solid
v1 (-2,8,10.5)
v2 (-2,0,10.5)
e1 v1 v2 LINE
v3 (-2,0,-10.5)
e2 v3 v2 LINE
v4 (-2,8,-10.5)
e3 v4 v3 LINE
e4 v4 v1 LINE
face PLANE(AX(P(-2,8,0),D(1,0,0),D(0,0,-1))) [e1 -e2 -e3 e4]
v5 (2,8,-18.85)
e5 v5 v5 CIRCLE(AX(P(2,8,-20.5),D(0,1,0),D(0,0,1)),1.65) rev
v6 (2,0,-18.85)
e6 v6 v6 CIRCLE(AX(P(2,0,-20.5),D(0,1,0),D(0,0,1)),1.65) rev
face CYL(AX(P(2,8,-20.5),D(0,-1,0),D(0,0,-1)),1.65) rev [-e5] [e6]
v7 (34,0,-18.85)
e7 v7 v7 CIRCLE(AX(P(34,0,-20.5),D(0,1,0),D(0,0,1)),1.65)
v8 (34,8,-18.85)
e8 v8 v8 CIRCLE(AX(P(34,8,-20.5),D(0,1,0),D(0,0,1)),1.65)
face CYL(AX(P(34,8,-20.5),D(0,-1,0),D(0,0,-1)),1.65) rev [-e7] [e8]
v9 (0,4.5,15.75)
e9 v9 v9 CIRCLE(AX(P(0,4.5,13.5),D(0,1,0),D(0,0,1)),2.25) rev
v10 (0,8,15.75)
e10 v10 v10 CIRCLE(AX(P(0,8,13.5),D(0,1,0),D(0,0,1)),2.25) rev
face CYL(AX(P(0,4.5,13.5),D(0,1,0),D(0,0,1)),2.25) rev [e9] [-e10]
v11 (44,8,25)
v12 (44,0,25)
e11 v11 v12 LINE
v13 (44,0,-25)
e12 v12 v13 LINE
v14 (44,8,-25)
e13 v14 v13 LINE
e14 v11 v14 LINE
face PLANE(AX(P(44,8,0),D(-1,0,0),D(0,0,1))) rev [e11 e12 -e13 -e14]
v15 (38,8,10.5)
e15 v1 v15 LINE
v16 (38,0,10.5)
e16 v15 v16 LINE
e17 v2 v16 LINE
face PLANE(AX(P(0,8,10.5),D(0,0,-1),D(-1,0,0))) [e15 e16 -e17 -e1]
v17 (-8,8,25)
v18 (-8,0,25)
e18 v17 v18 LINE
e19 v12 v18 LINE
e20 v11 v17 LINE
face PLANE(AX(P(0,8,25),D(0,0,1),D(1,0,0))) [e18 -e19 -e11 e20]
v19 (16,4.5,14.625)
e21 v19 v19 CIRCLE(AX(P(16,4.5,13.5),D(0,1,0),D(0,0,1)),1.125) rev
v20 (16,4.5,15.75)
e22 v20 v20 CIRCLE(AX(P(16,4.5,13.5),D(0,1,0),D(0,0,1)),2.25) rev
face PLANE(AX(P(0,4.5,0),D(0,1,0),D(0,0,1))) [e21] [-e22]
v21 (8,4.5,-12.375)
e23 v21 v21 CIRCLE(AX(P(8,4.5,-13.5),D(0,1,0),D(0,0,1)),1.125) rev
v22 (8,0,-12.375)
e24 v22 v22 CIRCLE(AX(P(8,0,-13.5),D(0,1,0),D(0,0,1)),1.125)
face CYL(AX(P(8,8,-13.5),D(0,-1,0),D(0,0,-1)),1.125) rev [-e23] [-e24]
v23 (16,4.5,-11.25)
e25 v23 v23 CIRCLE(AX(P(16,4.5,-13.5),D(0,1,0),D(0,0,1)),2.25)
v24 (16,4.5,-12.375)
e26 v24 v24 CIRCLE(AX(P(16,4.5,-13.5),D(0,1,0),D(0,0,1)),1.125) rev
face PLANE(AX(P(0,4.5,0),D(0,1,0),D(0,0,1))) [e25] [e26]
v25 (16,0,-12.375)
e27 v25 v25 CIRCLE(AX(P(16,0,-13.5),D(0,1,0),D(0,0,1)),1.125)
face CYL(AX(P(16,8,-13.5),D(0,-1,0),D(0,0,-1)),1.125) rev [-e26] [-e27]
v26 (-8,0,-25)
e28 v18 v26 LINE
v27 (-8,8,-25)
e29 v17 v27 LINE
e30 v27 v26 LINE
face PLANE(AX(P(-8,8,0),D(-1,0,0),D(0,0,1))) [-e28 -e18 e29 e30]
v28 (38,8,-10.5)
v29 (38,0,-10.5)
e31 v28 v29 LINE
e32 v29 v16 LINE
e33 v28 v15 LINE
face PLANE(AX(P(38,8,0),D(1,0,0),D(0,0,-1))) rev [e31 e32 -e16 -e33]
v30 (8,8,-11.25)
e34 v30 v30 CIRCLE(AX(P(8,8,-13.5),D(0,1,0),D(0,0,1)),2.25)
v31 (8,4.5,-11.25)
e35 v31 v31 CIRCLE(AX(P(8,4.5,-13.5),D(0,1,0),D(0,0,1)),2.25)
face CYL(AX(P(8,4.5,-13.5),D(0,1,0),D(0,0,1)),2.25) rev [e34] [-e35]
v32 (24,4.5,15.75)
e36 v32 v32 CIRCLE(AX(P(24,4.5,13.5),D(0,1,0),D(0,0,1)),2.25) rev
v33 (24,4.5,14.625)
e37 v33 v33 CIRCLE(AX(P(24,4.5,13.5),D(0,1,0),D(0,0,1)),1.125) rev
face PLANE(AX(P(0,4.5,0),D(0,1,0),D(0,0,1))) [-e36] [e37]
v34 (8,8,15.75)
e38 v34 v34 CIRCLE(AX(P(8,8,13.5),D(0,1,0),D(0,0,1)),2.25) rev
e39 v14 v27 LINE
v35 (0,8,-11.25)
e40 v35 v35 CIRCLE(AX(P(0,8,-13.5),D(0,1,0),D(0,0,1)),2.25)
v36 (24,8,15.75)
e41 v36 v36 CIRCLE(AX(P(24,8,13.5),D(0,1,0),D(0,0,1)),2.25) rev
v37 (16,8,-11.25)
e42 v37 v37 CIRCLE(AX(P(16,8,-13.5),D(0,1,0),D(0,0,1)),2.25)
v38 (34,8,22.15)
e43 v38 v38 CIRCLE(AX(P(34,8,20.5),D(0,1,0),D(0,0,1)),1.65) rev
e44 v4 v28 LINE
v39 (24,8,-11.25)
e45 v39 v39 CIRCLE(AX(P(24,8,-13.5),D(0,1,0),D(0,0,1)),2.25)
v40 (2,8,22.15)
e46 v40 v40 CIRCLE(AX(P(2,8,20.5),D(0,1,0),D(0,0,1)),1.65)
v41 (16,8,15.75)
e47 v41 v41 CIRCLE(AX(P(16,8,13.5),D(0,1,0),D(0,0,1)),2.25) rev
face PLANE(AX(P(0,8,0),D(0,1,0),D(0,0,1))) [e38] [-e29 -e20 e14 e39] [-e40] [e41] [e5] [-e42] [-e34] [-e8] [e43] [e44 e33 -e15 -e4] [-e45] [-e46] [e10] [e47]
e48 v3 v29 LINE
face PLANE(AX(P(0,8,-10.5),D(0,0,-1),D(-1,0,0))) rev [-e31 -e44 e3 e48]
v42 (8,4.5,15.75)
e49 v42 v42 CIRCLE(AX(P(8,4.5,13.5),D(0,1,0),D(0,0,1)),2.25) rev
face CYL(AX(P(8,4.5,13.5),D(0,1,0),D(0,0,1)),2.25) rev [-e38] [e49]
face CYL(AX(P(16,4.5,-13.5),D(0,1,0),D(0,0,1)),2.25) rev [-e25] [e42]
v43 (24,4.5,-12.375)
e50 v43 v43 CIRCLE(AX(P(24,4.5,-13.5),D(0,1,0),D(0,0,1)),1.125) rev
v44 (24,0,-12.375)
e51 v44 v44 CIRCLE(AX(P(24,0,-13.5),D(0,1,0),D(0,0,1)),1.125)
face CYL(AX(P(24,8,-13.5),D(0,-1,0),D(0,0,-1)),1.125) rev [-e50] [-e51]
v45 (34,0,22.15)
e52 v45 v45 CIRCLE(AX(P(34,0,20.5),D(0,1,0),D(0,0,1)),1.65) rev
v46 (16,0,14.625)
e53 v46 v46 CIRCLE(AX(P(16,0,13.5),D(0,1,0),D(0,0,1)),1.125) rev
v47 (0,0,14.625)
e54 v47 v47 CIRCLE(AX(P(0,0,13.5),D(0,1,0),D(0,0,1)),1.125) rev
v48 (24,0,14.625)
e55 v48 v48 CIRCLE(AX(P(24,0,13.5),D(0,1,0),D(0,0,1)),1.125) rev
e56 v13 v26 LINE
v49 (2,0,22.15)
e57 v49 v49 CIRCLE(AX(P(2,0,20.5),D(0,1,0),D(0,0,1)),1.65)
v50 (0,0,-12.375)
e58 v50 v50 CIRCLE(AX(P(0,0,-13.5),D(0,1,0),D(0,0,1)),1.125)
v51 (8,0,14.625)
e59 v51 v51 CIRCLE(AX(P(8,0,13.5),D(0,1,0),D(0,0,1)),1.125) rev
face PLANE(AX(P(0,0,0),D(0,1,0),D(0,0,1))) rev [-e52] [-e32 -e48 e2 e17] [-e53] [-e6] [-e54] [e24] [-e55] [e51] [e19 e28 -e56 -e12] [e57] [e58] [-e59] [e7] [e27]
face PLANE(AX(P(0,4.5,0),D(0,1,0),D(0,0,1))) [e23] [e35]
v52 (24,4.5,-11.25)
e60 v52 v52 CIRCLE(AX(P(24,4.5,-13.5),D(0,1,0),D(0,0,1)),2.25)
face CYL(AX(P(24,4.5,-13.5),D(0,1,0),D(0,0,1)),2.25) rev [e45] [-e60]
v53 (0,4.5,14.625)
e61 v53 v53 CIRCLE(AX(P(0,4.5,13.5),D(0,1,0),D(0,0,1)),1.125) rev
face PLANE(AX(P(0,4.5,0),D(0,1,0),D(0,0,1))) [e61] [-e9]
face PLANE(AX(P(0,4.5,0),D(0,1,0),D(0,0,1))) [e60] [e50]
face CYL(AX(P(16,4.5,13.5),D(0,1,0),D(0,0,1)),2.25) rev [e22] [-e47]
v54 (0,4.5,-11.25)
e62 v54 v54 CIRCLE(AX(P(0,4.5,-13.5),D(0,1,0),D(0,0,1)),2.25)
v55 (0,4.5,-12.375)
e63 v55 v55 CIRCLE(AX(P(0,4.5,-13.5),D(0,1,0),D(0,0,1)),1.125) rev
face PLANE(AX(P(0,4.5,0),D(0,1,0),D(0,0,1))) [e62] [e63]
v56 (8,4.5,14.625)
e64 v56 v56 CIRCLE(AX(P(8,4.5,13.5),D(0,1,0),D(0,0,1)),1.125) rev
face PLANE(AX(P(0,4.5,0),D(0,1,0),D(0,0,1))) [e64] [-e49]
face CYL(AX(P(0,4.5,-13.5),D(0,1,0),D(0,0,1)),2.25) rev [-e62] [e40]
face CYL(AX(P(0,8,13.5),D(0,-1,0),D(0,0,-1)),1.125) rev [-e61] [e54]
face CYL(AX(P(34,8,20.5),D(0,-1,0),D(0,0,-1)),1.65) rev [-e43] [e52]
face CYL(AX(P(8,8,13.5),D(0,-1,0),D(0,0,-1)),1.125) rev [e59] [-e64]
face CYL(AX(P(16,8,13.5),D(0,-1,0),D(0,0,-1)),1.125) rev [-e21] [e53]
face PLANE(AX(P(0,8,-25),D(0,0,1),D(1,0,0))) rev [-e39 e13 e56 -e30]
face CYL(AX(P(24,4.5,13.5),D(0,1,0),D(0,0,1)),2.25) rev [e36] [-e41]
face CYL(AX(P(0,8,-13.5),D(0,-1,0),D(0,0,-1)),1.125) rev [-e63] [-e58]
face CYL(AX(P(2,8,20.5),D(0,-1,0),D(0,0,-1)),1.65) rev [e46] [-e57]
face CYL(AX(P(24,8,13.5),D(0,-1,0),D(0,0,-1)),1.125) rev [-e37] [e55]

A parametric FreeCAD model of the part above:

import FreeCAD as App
import Part
import Sketcher
Q = App.Units.Quantity

doc = App.newDocument("Part")
body = doc.addObject("PartDesign::Body", "Body")

# Sketch on XZ plane
sketch1 = body.newObject("Sketcher::SketchObject", "Sketch")
sketch1.AttachmentSupport = (doc.getObject("XZ_Plane"), [""])
sketch1.MapMode = "FlatFace"
sketch1.addGeometry(Part.LineSegment(App.Vector(-8, -25, 0), App.Vector(-8, 25, 0)), False)
sketch1.addGeometry(Part.LineSegment(App.Vector(-8, 25, 0), App.Vector(44, 25, 0)), False)
sketch1.addGeometry(Part.LineSegment(App.Vector(44, 25, 0), App.Vector(44, -25, 0)), False)
sketch1.addGeometry(Part.LineSegment(App.Vector(44, -25, 0), App.Vector(-8, -25, 0)), False)
sketch1.addGeometry(Part.Circle(App.Vector(2, 20.5, 0), App.Vector(0, 0, 1), 1.65), False)
sketch1.addGeometry(Part.Circle(App.Vector(0, 13.5, 0), App.Vector(0, 0, 1), 1.125), False)
sketch1.addGeometry(Part.Circle(App.Vector(8, 13.5, 0), App.Vector(0, 0, 1), 1.125), False)
sketch1.addGeometry(Part.Circle(App.Vector(16, 13.5, 0), App.Vector(0, 0, 1), 1.125), False)
sketch1.addGeometry(Part.Circle(App.Vector(24, 13.5, 0), App.Vector(0, 0, 1), 1.125), False)
sketch1.addGeometry(Part.Circle(App.Vector(34, 20.5, 0), App.Vector(0, 0, 1), 1.65), False)
sketch1.addGeometry(Part.Circle(App.Vector(0, -13.5, 0), App.Vector(0, 0, 1), 1.125), False)
sketch1.addGeometry(Part.Circle(App.Vector(2, -20.5, 0), App.Vector(0, 0, 1), 1.65), False)
sketch1.addGeometry(Part.Circle(App.Vector(8, -13.5, 0), App.Vector(0, 0, 1), 1.125), False)
sketch1.addGeometry(Part.Circle(App.Vector(16, -13.5, 0), App.Vector(0, 0, 1), 1.125), False)
sketch1.addGeometry(Part.LineSegment(App.Vector(38, 10.5, 0), App.Vector(-2, 10.5, 0)), False)
sketch1.addGeometry(Part.LineSegment(App.Vector(-2, 10.5, 0), App.Vector(-2, -10.5, 0)), False)
sketch1.addGeometry(Part.LineSegment(App.Vector(-2, -10.5, 0), App.Vector(38, -10.5, 0)), False)
sketch1.addGeometry(Part.LineSegment(App.Vector(38, -10.5, 0), App.Vector(38, 10.5, 0)), False)
sketch1.addGeometry(Part.Circle(App.Vector(24, -13.5, 0), App.Vector(0, 0, 1), 1.125), False)
sketch1.addGeometry(Part.Circle(App.Vector(34, -20.5, 0), App.Vector(0, 0, 1), 1.65), False)
sketch1.addConstraint(Sketcher.Constraint("Coincident", 0, 2, 1, 1))
sketch1.addConstraint(Sketcher.Constraint("Coincident", 1, 2, 2, 1))
sketch1.addConstraint(Sketcher.Constraint("Coincident", 2, 2, 3, 1))
sketch1.addConstraint(Sketcher.Constraint("Coincident", 3, 2, 0, 1))
sketch1.addConstraint(Sketcher.Constraint("Coincident", 14, 2, 15, 1))
sketch1.addConstraint(Sketcher.Constraint("Coincident", 15, 2, 16, 1))
sketch1.addConstraint(Sketcher.Constraint("Coincident", 16, 2, 17, 1))
sketch1.addConstraint(Sketcher.Constraint("Coincident", 17, 2, 14, 1))
sketch1.addConstraint(Sketcher.Constraint("Vertical", 0))
sketch1.addConstraint(Sketcher.Constraint("Horizontal", 1))
sketch1.addConstraint(Sketcher.Constraint("Vertical", 2))
sketch1.addConstraint(Sketcher.Constraint("Horizontal", 3))
sketch1.addConstraint(Sketcher.Constraint("Horizontal", 14))
sketch1.addConstraint(Sketcher.Constraint("Vertical", 15))
sketch1.addConstraint(Sketcher.Constraint("Horizontal", 16))
sketch1.addConstraint(Sketcher.Constraint("Vertical", 17))
sketch1.addConstraint(Sketcher.Constraint("Equal", 5, 6))
sketch1.addConstraint(Sketcher.Constraint("Equal", 6, 7))
sketch1.addConstraint(Sketcher.Constraint("Equal", 7, 8))
sketch1.addConstraint(Sketcher.Constraint("Equal", 4, 9))
sketch1.addConstraint(Sketcher.Constraint("Equal", 8, 10))
sketch1.addConstraint(Sketcher.Constraint("Equal", 9, 11))
sketch1.addConstraint(Sketcher.Constraint("Equal", 10, 12))
sketch1.addConstraint(Sketcher.Constraint("Equal", 12, 13))
sketch1.addConstraint(Sketcher.Constraint("Equal", 13, 18))
sketch1.addConstraint(Sketcher.Constraint("Equal", 11, 19))
sketch1.addConstraint(Sketcher.Constraint("Symmetric", 5, 3, 10, 3, -1, 1))
sketch1.addConstraint(Sketcher.Constraint("Symmetric", 4, 3, 11, 3, -1))
sketch1.addConstraint(Sketcher.Constraint("Symmetric", 6, 3, 12, 3, -1))
sketch1.addConstraint(Sketcher.Constraint("Symmetric", 7, 3, 13, 3, -1))
sketch1.addConstraint(Sketcher.Constraint("Symmetric", 8, 3, 18, 3, -1))
sketch1.addConstraint(Sketcher.Constraint("Symmetric", 9, 3, 19, 3, -1))
sketch1.addConstraint(Sketcher.Constraint("PointOnObject", 5, 3, -2))
sketch1.addConstraint(Sketcher.Constraint("Horizontal", 5, 3, 6, 3))
sketch1.addConstraint(Sketcher.Constraint("Horizontal", 6, 3, 7, 3))
sketch1.addConstraint(Sketcher.Constraint("Horizontal", 7, 3, 8, 3))
sketch1.addConstraint(Sketcher.Constraint("Horizontal", 4, 3, 9, 3))
sketch1.addConstraint(Sketcher.Constraint("Diameter", 4, Q("3.3 mm")))
sketch1.addConstraint(Sketcher.Constraint("Diameter", 5, Q("2.25 mm")))
sketch1.addConstraint(Sketcher.Constraint("DistanceX", 1, 1, 1, 2, Q("52 mm")))
sketch1.addConstraint(Sketcher.Constraint("DistanceX", 14, 2, 14, 1, Q("40 mm")))
sketch1.addConstraint(Sketcher.Constraint("DistanceY", 0, 1, 0, 2, Q("50 mm")))
sketch1.addConstraint(Sketcher.Constraint("DistanceY", 15, 2, 15, 1, Q("21 mm")))
sketch1.addConstraint(Sketcher.Constraint("DistanceX", -1, 1, 4, 3, Q("2 mm")))
sketch1.addConstraint(Sketcher.Constraint("DistanceX", -1, 1, 6, 3, Q("8 mm")))
sketch1.addConstraint(Sketcher.Constraint("DistanceX", -1, 1, 7, 3, Q("16 mm")))
sketch1.addConstraint(Sketcher.Constraint("DistanceX", -1, 1, 8, 3, Q("24 mm")))
sketch1.addConstraint(Sketcher.Constraint("DistanceX", -1, 1, 9, 3, Q("34 mm")))
sketch1.addConstraint(Sketcher.Constraint("DistanceX", 0, 2, -1, 1, Q("8 mm")))
sketch1.addConstraint(Sketcher.Constraint("DistanceY", -1, 1, 0, 2, Q("25 mm")))
sketch1.addConstraint(Sketcher.Constraint("DistanceX", 14, 2, -1, 1, Q("2 mm")))
sketch1.addConstraint(Sketcher.Constraint("DistanceY", 5, 3, 4, 3, Q("7 mm")))
sketch1.addConstraint(Sketcher.Constraint("DistanceY", 10, 3, 5, 3, Q("27 mm")))
sketch1.addConstraint(Sketcher.Constraint("DistanceY", 14, 2, 5, 3, Q("3 mm")))
pad1 = body.newObject("PartDesign::Pad", "Pad")
pad1.Profile = sketch1
pad1.Length = 8
pad1.Reversed = True

# Sketch on XZ plane
sketch2 = body.newObject("Sketcher::SketchObject", "Sketch001")
sketch2.AttachmentSupport = (doc.getObject("XZ_Plane"), [""])
sketch2.MapMode = "FlatFace"
sketch2.AttachmentOffset = App.Placement(App.Vector(0, 0, -8), App.Rotation())
sketch2.addGeometry(Part.Circle(App.Vector(0, -13.5, 0), App.Vector(0, 0, 1), 2.25), False)
sketch2.addGeometry(Part.Circle(App.Vector(0, -13.5, 0), App.Vector(0, 0, 1), 1.125), False)
sketch2.addGeometry(Part.Circle(App.Vector(8, -13.5, 0), App.Vector(0, 0, 1), 2.25), False)
sketch2.addGeometry(Part.Circle(App.Vector(8, -13.5, 0), App.Vector(0, 0, 1), 1.125), False)
sketch2.addGeometry(Part.Circle(App.Vector(16, -13.5, 0), App.Vector(0, 0, 1), 2.25), False)
sketch2.addGeometry(Part.Circle(App.Vector(16, -13.5, 0), App.Vector(0, 0, 1), 1.125), False)
sketch2.addGeometry(Part.Circle(App.Vector(24, -13.5, 0), App.Vector(0, 0, 1), 2.25), False)
sketch2.addGeometry(Part.Circle(App.Vector(24, -13.5, 0), App.Vector(0, 0, 1), 1.125), False)
sketch2.addGeometry(Part.Circle(App.Vector(24, 13.5, 0), App.Vector(0, 0, 1), 2.25), False)
sketch2.addGeometry(Part.Circle(App.Vector(24, 13.5, 0), App.Vector(0, 0, 1), 1.125), False)
sketch2.addGeometry(Part.Circle(App.Vector(16, 13.5, 0), App.Vector(0, 0, 1), 2.25), False)
sketch2.addGeometry(Part.Circle(App.Vector(16, 13.5, 0), App.Vector(0, 0, 1), 1.125), False)
sketch2.addGeometry(Part.Circle(App.Vector(8, 13.5, 0), App.Vector(0, 0, 1), 2.25), False)
sketch2.addGeometry(Part.Circle(App.Vector(8, 13.5, 0), App.Vector(0, 0, 1), 1.125), False)
sketch2.addGeometry(Part.Circle(App.Vector(0, 13.5, 0), App.Vector(0, 0, 1), 2.25), False)
sketch2.addGeometry(Part.Circle(App.Vector(0, 13.5, 0), App.Vector(0, 0, 1), 1.125), False)
sketch2.addConstraint(Sketcher.Constraint("Coincident", 1, 3, 0, 3))
sketch2.addConstraint(Sketcher.Constraint("Coincident", 3, 3, 2, 3))
sketch2.addConstraint(Sketcher.Constraint("Coincident", 5, 3, 4, 3))
sketch2.addConstraint(Sketcher.Constraint("Coincident", 7, 3, 6, 3))
sketch2.addConstraint(Sketcher.Constraint("Coincident", 9, 3, 8, 3))
sketch2.addConstraint(Sketcher.Constraint("Coincident", 11, 3, 10, 3))
sketch2.addConstraint(Sketcher.Constraint("Coincident", 13, 3, 12, 3))
sketch2.addConstraint(Sketcher.Constraint("Coincident", 15, 3, 14, 3))
sketch2.addConstraint(Sketcher.Constraint("Equal", 0, 2))
sketch2.addConstraint(Sketcher.Constraint("Equal", 1, 3))
sketch2.addConstraint(Sketcher.Constraint("Equal", 2, 4))
sketch2.addConstraint(Sketcher.Constraint("Equal", 3, 5))
sketch2.addConstraint(Sketcher.Constraint("Equal", 4, 6))
sketch2.addConstraint(Sketcher.Constraint("Equal", 5, 7))
sketch2.addConstraint(Sketcher.Constraint("Equal", 6, 8))
sketch2.addConstraint(Sketcher.Constraint("Equal", 7, 9))
sketch2.addConstraint(Sketcher.Constraint("Equal", 8, 10))
sketch2.addConstraint(Sketcher.Constraint("Equal", 9, 11))
sketch2.addConstraint(Sketcher.Constraint("Equal", 10, 12))
sketch2.addConstraint(Sketcher.Constraint("Equal", 11, 13))
sketch2.addConstraint(Sketcher.Constraint("Equal", 12, 14))
sketch2.addConstraint(Sketcher.Constraint("Equal", 13, 15))
sketch2.addConstraint(Sketcher.Constraint("Symmetric", 0, 3, 14, 3, -1, 1))
sketch2.addConstraint(Sketcher.Constraint("Symmetric", 6, 3, 8, 3, -1))
sketch2.addConstraint(Sketcher.Constraint("Symmetric", 4, 3, 10, 3, -1))
sketch2.addConstraint(Sketcher.Constraint("Symmetric", 2, 3, 12, 3, -1))
sketch2.addConstraint(Sketcher.Constraint("PointOnObject", 0, 3, -2))
sketch2.addConstraint(Sketcher.Constraint("Horizontal", 1, 3, 2, 3))
sketch2.addConstraint(Sketcher.Constraint("Horizontal", 3, 3, 4, 3))
sketch2.addConstraint(Sketcher.Constraint("Horizontal", 5, 3, 6, 3))
sketch2.addConstraint(Sketcher.Constraint("Diameter", 0, Q("4.5 mm")))
sketch2.addConstraint(Sketcher.Constraint("Diameter", 1, Q("2.25 mm")))
sketch2.addConstraint(Sketcher.Constraint("DistanceX", -1, 1, 2, 3, Q("8 mm")))
sketch2.addConstraint(Sketcher.Constraint("DistanceX", -1, 1, 4, 3, Q("16 mm")))
sketch2.addConstraint(Sketcher.Constraint("DistanceX", -1, 1, 6, 3, Q("24 mm")))
sketch2.addConstraint(Sketcher.Constraint("DistanceY", 6, 3, 8, 3, Q("27 mm")))
pocket1 = body.newObject("PartDesign::Pocket", "Pocket")
pocket1.Profile = sketch2
pocket1.Length = 3.5
pocket1.Reversed = True

doc.recompute()
